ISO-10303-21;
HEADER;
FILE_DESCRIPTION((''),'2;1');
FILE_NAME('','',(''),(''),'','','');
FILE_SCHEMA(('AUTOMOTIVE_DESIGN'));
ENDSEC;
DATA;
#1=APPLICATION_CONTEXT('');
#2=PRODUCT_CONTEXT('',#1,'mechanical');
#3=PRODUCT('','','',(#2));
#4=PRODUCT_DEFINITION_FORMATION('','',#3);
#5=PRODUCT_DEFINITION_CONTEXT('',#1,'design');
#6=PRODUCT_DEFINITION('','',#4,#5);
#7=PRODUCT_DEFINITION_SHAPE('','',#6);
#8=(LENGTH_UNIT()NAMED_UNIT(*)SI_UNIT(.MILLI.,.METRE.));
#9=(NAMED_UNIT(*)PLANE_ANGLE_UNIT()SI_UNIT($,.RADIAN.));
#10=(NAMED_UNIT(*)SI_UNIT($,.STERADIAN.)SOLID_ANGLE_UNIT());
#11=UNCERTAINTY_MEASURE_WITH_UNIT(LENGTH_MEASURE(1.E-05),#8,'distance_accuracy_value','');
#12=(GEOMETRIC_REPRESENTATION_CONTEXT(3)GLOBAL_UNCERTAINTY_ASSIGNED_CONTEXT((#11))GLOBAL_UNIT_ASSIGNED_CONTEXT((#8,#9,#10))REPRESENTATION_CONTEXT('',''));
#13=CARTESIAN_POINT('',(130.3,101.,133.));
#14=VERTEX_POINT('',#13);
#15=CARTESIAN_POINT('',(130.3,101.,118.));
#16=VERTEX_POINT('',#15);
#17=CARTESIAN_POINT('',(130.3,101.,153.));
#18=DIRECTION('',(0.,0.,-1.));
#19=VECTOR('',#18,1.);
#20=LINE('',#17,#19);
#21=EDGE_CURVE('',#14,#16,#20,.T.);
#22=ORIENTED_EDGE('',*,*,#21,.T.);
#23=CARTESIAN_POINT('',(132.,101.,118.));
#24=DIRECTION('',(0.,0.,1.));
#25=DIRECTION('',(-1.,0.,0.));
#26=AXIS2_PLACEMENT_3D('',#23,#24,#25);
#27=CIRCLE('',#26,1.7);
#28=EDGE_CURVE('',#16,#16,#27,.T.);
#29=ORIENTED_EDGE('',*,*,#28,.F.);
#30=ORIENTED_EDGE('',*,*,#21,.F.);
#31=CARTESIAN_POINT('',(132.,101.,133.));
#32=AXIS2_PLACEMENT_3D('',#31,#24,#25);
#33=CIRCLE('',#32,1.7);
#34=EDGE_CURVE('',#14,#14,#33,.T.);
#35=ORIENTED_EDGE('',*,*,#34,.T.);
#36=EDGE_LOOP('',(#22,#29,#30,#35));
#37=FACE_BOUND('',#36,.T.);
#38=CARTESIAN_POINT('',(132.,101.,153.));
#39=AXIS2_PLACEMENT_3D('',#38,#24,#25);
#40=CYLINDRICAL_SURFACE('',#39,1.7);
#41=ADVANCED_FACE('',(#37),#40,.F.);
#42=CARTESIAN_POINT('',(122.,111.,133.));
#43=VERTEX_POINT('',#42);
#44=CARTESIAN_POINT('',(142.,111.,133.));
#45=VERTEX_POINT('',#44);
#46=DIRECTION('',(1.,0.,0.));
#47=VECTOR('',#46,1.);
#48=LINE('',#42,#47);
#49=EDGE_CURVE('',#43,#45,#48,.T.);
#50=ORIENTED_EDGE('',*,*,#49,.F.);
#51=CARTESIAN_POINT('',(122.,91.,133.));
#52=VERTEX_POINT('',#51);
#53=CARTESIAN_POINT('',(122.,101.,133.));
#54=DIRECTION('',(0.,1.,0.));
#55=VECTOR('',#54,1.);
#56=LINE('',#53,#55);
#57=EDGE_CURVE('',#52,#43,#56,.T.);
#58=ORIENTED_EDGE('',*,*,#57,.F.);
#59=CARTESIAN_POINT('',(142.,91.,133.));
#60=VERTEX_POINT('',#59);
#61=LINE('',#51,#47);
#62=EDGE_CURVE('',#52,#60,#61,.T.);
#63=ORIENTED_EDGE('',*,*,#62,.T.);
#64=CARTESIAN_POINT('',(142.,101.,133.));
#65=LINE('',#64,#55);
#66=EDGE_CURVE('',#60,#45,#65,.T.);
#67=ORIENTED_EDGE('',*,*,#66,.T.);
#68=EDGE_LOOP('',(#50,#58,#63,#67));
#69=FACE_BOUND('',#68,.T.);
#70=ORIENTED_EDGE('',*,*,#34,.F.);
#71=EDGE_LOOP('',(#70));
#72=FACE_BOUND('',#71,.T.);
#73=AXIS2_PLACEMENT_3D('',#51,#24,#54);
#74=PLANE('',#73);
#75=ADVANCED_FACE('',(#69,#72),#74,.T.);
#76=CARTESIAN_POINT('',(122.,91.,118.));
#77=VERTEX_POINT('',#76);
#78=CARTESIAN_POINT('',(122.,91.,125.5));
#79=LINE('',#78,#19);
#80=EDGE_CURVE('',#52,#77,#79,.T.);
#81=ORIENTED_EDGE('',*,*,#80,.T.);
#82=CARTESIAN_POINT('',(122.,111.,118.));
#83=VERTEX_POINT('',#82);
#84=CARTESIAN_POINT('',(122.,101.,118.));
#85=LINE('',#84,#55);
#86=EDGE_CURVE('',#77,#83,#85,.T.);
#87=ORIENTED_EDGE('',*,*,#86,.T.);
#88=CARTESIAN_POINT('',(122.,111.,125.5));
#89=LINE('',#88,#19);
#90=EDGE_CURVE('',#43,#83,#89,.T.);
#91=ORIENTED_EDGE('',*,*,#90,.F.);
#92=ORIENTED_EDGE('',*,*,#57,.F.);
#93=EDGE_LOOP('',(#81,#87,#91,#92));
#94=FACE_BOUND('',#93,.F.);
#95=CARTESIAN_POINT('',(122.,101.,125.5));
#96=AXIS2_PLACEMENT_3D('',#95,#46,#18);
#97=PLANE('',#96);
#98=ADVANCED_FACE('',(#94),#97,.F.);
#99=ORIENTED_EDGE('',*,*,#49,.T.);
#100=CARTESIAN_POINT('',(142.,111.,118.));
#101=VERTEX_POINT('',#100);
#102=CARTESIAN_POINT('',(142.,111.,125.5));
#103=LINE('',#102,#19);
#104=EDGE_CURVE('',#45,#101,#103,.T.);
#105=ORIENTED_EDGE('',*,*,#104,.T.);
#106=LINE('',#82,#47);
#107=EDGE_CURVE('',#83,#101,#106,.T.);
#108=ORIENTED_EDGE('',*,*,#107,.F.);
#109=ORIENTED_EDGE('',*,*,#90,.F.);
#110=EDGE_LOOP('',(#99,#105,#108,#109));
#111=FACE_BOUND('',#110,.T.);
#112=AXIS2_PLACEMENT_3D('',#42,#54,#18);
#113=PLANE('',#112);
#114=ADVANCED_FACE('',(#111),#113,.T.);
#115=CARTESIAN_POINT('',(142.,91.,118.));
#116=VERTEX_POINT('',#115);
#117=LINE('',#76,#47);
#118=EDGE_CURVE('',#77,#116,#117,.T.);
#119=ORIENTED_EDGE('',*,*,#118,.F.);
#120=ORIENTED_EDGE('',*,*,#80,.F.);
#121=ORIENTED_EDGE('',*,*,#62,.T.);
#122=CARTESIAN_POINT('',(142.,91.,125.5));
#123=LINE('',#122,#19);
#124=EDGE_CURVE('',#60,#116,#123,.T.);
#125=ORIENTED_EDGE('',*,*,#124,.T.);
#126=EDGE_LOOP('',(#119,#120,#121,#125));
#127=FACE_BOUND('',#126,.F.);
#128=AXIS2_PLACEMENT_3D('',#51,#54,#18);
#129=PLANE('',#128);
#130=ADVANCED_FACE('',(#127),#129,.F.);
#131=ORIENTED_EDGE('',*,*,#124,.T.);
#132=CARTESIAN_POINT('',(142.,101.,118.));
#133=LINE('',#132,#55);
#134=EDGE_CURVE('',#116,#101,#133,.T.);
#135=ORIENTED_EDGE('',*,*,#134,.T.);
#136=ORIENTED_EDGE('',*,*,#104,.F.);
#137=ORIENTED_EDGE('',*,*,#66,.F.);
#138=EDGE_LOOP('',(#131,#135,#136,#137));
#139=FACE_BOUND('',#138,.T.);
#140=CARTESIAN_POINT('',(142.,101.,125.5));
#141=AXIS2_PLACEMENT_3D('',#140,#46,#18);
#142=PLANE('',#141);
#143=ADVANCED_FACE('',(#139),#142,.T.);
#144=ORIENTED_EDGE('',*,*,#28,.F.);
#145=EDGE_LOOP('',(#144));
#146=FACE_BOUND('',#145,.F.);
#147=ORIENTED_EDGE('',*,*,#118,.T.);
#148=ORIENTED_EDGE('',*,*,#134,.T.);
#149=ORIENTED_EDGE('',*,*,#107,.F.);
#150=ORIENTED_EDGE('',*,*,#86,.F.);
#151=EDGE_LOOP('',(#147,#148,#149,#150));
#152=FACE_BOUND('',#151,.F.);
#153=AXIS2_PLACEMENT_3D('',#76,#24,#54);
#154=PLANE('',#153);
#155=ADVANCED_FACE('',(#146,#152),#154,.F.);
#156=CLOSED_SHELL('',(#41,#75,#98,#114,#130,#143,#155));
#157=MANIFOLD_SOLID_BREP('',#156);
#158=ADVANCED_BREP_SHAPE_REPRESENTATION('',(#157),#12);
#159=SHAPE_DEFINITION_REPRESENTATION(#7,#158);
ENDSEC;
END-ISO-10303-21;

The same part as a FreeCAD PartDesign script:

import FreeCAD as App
import Part
import Sketcher

V = App.Vector

doc = App.newDocument("Part")
body = doc.addObject("PartDesign::Body", "Body")

# Sketch on XY plane
sketch1 = body.newObject("Sketcher::SketchObject", "Sketch")
sketch1.AttachmentSupport = (doc.getObject("XY_Plane"), [""])
sketch1.MapMode = "FlatFace"
sketch1.addGeometry(Part.Circle(V(0, 0, 0), V(0, 0, 1), 1.7), False)
sketch1.addConstraint([
    Sketcher.Constraint("Coincident", 0, 3, -1, 1),
    Sketcher.Constraint("Diameter", 0, 3.4),
])
pad1 = body.newObject("PartDesign::Pad", "Pad")
pad1.Profile = sketch1
pad1.Length = 80
body2 = doc.addObject("PartDesign::Body", "Body001")
doc.recompute()

body.Placement = App.Placement(V(0, 0, 0), App.Rotation(V(0, 1, 0), 90))
boolean = body2.newObject("PartDesign::Boolean", "Boolean")
boolean.Type = "Fuse"
boolean.addObjects([body])
body3 = doc.addObject("PartDesign::Body", "Body002")
doc.recompute()

body2.Placement = App.Placement(V(-20, 10, 10), App.Rotation(V(0, 0, 1), 0))
boolean2 = body3.newObject("PartDesign::Boolean", "Boolean001")
boolean2.Type = "Fuse"
boolean2.addObjects([body2])
body4 = doc.addObject("PartDesign::Body", "Body003")

# Sketch on XY plane
sketch2 = body4.newObject("Sketcher::SketchObject", "Sketch001")
sketch2.AttachmentSupport = (doc.getObject("XY_Plane003"), [""])
sketch2.MapMode = "FlatFace"
sketch2.addGeometry([
    Part.LineSegment(V(0, 20, 0), V(0, 0, 0)),
    Part.LineSegment(V(0, 0, 0), V(15, 0, 0)),
    Part.LineSegment(V(15, 0, 0), V(15, 20, 0)),
    Part.LineSegment(V(15, 20, 0), V(0, 20, 0)),
], False)
sketch2.addConstraint([
    Sketcher.Constraint("Coincident", 0, 2, 1, 1),
    Sketcher.Constraint("Coincident", 1, 2, 2, 1),
    Sketcher.Constraint("Coincident", 2, 2, 3, 1),
    Sketcher.Constraint("Coincident", 3, 2, 0, 1),
    Sketcher.Constraint("Vertical", 0),
    Sketcher.Constraint("Horizontal", 1),
    Sketcher.Constraint("Vertical", 2),
    Sketcher.Constraint("Horizontal", 3),
    Sketcher.Constraint("Coincident", 0, 2, -1, 1),
    Sketcher.Constraint("DistanceX", 1, 1, 1, 2, 15.0),
    Sketcher.Constraint("DistanceY", 0, 2, 0, 1, 20.0),
])
pad2 = body4.newObject("PartDesign::Pad", "Pad001")
pad2.Profile = sketch2
pad2.Length = 20
doc.recompute()

boolean3 = body4.newObject("PartDesign::Boolean", "Boolean002")
boolean3.Type = "Cut"
boolean3.addObjects([body3])
body5 = doc.addObject("PartDesign::Body", "Body004")
doc.recompute()

body4.Placement = App.Placement(V(0, 0, 0), App.Rotation(V(0, 1, 0), 90))
boolean4 = body5.newObject("PartDesign::Boolean", "Boolean003")
boolean4.Type = "Fuse"
boolean4.addObjects([body4])
body6 = doc.addObject("PartDesign::Body", "Body005")
doc.recompute()

body5.Placement = App.Placement(V(122, 91, 133), App.Rotation(V(0, 0, 1), 0))
boolean5 = body6.newObject("PartDesign::Boolean", "Boolean004")
boolean5.Type = "Fuse"
boolean5.addObjects([body5])

doc.recompute()
